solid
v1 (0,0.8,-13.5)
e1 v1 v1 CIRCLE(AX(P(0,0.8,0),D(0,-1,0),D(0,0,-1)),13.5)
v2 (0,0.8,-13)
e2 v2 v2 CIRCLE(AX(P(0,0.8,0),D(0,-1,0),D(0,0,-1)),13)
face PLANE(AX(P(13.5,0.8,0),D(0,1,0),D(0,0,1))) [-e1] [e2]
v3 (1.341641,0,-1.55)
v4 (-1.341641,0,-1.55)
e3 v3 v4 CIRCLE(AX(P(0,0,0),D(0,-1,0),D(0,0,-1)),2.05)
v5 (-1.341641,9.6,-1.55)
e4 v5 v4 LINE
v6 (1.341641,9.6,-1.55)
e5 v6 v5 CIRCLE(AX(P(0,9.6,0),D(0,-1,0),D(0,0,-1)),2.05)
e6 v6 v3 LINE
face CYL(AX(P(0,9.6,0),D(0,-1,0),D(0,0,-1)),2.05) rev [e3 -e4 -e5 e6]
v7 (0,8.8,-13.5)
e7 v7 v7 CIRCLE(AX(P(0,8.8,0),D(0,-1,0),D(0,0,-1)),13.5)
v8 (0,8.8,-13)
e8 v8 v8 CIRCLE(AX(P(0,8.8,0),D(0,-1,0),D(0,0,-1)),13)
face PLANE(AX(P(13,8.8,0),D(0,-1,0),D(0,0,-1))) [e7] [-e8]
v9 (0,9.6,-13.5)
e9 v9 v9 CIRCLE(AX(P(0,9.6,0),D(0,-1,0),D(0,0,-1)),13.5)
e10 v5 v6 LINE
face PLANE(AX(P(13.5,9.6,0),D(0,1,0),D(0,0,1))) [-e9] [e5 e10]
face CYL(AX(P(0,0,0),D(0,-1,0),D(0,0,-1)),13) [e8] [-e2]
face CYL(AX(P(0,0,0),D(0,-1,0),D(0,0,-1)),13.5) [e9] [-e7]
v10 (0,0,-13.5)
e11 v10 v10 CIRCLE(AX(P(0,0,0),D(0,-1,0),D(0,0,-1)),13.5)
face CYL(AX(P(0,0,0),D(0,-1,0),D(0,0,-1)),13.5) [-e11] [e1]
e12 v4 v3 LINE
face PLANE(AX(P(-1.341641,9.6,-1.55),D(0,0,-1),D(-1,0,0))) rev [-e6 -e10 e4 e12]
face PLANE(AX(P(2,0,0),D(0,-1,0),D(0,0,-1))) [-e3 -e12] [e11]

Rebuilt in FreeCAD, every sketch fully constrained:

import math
import FreeCAD as App
import Part
import Sketcher

V = App.Vector
Q = App.Units.Quantity


def add_polygon(sketch, points):
    """Adds a closed chain of lines whose ends are joined by coincident constraints."""
    first, n = sketch.GeometryCount, len(points)
    for a, b in zip(points, points[1:] + points[:1]):
        sketch.addGeometry(Part.LineSegment(App.Vector(*a, 0), App.Vector(*b, 0)), False)
    for i in range(n):
        sketch.addConstraint(Sketcher.Constraint("Coincident", first + i, 2, first + (i + 1) % n, 1))

doc = App.newDocument("Part")
params = doc.addObject("Spreadsheet::Sheet", "Params")
for row, (alias, value) in enumerate([
    ("sketch1_height", "8 mm"),
    ("sketch1_width", "11.5 mm"),
    ("sketch1_width2", "0.5 mm"),
    ("sketch1_height2", "0.8 mm"),
    ("revolution_angle", "360 deg"),
    ("sketch2_radius", "2 mm"),
    ("pad1_length", "9.6 mm"),
    ("sketch3_radius", "2.05 mm"),
], start=1):
    params.set(f"A{row}", alias)
    params.set(f"B{row}", "=" + value)
    params.setAlias(f"B{row}", alias)

body = doc.addObject("PartDesign::Body", "Body")

# Sketch on XY plane
sketch1 = doc.addObject("Sketcher::SketchObject", "Sketch")
body.addObject(sketch1)
sketch1.AttachmentSupport = (doc.XY_Plane, [""])
sketch1.MapMode = "FlatFace"
add_polygon(sketch1, [(2, 0), (13.5, 0), (13.5, 0.8), (13, 0.8), (13, 8.8), (13.5, 8.8), (13.5, 9.6), (2, 9.6)])  # lines 0-7
sketch1.addConstraint([
    Sketcher.Constraint("Horizontal", 0),
    Sketcher.Constraint("Vertical", 1),
    Sketcher.Constraint("Horizontal", 2),
    Sketcher.Constraint("Vertical", 3),
    Sketcher.Constraint("Horizontal", 4),
    Sketcher.Constraint("Vertical", 5),
    Sketcher.Constraint("Horizontal", 6),
    Sketcher.Constraint("Vertical", 7),
    Sketcher.Constraint("PointOnObject", 0, 2, -1),
    Sketcher.Constraint("Vertical", 1, 2, 4, 2),
    Sketcher.Constraint("Equal", 1, 5),
    Sketcher.Constraint("DistanceY", 3, 1, 3, 2, Q("8 mm")),
    Sketcher.Constraint("DistanceX", 0, 1, 0, 2, Q("11.5 mm")),
    Sketcher.Constraint("DistanceX", 2, 2, 2, 1, Q("0.5 mm")),
    Sketcher.Constraint("DistanceY", 1, 1, 1, 2, Q("0.8 mm")),
    Sketcher.Constraint("DistanceX", -1, 1, 2, 2, Q("13 mm")),
])
sketch1.setExpression("Constraints[19]", "Params.sketch1_height")
sketch1.setExpression("Constraints[20]", "Params.sketch1_width")
sketch1.setExpression("Constraints[21]", "Params.sketch1_width2")
sketch1.setExpression("Constraints[22]", "Params.sketch1_height2")
revolution = doc.addObject("PartDesign::Revolution", "Revolution")
body.addObject(revolution)
revolution.Profile = sketch1
revolution.ReferenceAxis = (sketch1, ["V_Axis"])
revolution.setExpression("Angle", "Params.revolution_angle")

# Sketch on XZ plane
sketch2 = doc.addObject("Sketcher::SketchObject", "Sketch001")
body.addObject(sketch2)
sketch2.AttachmentSupport = (doc.XZ_Plane, [""])
sketch2.MapMode = "FlatFace"
sketch2.addGeometry([
    Part.LineSegment(V(-1.3, -1.5, 0), V(1.3, -1.5, 0)),
    Part.ArcOfCircle(Part.Circle(V(0, 0, 0), V(0, 0, 1), 2), math.radians(-131), math.radians(-49)),
], False)
sketch2.addConstraint([
    Sketcher.Constraint("Coincident", 0, 1, 1, 1),
    Sketcher.Constraint("Coincident", 1, 2, 0, 2),
    Sketcher.Constraint("Horizontal", 0),
    Sketcher.Constraint("Coincident", 1, 3, -1, 1),
    Sketcher.Constraint("Radius", 1, Q("2 mm")),
    Sketcher.Constraint("DistanceY", 0, 1, -1, 1, Q("1.5 mm")),
])
sketch2.setExpression("Constraints[4]", "Params.sketch2_radius")
pad1 = doc.addObject("PartDesign::Pad", "Pad")
body.addObject(pad1)
pad1.Profile = sketch2
pad1.setExpression("Length", "Params.pad1_length")
pad1.Reversed = True

# Sketch on XZ plane
sketch3 = doc.addObject("Sketcher::SketchObject", "Sketch002")
body.addObject(sketch3)
sketch3.AttachmentSupport = (doc.XZ_Plane, [""])
sketch3.MapMode = "FlatFace"
sketch3.addGeometry([
    Part.LineSegment(V(-1.3, -1.6, 0), V(1.3, -1.6, 0)),
    Part.ArcOfCircle(Part.Circle(V(0, 0, 0), V(0, 0, 1), 2), math.radians(-49), math.radians(229)),
], False)
sketch3.addConstraint([
    Sketcher.Constraint("Coincident", 0, 1, 1, 2),
    Sketcher.Constraint("Coincident", 1, 1, 0, 2),
    Sketcher.Constraint("Horizontal", 0),
    Sketcher.Constraint("Coincident", 1, 3, -1, 1),
    Sketcher.Constraint("Radius", 1, Q("2.05 mm")),
    Sketcher.Constraint("DistanceY", 0, 1, -1, 1, Q("1.55 mm")),
])
sketch3.setExpression("Constraints[4]", "Params.sketch3_radius")
pocket1 = doc.addObject("PartDesign::Pocket", "Pocket")
body.addObject(pocket1)
pocket1.Profile = sketch3
pocket1.Type = "ThroughAll"
pocket1.Midplane = True

doc.recompute()
